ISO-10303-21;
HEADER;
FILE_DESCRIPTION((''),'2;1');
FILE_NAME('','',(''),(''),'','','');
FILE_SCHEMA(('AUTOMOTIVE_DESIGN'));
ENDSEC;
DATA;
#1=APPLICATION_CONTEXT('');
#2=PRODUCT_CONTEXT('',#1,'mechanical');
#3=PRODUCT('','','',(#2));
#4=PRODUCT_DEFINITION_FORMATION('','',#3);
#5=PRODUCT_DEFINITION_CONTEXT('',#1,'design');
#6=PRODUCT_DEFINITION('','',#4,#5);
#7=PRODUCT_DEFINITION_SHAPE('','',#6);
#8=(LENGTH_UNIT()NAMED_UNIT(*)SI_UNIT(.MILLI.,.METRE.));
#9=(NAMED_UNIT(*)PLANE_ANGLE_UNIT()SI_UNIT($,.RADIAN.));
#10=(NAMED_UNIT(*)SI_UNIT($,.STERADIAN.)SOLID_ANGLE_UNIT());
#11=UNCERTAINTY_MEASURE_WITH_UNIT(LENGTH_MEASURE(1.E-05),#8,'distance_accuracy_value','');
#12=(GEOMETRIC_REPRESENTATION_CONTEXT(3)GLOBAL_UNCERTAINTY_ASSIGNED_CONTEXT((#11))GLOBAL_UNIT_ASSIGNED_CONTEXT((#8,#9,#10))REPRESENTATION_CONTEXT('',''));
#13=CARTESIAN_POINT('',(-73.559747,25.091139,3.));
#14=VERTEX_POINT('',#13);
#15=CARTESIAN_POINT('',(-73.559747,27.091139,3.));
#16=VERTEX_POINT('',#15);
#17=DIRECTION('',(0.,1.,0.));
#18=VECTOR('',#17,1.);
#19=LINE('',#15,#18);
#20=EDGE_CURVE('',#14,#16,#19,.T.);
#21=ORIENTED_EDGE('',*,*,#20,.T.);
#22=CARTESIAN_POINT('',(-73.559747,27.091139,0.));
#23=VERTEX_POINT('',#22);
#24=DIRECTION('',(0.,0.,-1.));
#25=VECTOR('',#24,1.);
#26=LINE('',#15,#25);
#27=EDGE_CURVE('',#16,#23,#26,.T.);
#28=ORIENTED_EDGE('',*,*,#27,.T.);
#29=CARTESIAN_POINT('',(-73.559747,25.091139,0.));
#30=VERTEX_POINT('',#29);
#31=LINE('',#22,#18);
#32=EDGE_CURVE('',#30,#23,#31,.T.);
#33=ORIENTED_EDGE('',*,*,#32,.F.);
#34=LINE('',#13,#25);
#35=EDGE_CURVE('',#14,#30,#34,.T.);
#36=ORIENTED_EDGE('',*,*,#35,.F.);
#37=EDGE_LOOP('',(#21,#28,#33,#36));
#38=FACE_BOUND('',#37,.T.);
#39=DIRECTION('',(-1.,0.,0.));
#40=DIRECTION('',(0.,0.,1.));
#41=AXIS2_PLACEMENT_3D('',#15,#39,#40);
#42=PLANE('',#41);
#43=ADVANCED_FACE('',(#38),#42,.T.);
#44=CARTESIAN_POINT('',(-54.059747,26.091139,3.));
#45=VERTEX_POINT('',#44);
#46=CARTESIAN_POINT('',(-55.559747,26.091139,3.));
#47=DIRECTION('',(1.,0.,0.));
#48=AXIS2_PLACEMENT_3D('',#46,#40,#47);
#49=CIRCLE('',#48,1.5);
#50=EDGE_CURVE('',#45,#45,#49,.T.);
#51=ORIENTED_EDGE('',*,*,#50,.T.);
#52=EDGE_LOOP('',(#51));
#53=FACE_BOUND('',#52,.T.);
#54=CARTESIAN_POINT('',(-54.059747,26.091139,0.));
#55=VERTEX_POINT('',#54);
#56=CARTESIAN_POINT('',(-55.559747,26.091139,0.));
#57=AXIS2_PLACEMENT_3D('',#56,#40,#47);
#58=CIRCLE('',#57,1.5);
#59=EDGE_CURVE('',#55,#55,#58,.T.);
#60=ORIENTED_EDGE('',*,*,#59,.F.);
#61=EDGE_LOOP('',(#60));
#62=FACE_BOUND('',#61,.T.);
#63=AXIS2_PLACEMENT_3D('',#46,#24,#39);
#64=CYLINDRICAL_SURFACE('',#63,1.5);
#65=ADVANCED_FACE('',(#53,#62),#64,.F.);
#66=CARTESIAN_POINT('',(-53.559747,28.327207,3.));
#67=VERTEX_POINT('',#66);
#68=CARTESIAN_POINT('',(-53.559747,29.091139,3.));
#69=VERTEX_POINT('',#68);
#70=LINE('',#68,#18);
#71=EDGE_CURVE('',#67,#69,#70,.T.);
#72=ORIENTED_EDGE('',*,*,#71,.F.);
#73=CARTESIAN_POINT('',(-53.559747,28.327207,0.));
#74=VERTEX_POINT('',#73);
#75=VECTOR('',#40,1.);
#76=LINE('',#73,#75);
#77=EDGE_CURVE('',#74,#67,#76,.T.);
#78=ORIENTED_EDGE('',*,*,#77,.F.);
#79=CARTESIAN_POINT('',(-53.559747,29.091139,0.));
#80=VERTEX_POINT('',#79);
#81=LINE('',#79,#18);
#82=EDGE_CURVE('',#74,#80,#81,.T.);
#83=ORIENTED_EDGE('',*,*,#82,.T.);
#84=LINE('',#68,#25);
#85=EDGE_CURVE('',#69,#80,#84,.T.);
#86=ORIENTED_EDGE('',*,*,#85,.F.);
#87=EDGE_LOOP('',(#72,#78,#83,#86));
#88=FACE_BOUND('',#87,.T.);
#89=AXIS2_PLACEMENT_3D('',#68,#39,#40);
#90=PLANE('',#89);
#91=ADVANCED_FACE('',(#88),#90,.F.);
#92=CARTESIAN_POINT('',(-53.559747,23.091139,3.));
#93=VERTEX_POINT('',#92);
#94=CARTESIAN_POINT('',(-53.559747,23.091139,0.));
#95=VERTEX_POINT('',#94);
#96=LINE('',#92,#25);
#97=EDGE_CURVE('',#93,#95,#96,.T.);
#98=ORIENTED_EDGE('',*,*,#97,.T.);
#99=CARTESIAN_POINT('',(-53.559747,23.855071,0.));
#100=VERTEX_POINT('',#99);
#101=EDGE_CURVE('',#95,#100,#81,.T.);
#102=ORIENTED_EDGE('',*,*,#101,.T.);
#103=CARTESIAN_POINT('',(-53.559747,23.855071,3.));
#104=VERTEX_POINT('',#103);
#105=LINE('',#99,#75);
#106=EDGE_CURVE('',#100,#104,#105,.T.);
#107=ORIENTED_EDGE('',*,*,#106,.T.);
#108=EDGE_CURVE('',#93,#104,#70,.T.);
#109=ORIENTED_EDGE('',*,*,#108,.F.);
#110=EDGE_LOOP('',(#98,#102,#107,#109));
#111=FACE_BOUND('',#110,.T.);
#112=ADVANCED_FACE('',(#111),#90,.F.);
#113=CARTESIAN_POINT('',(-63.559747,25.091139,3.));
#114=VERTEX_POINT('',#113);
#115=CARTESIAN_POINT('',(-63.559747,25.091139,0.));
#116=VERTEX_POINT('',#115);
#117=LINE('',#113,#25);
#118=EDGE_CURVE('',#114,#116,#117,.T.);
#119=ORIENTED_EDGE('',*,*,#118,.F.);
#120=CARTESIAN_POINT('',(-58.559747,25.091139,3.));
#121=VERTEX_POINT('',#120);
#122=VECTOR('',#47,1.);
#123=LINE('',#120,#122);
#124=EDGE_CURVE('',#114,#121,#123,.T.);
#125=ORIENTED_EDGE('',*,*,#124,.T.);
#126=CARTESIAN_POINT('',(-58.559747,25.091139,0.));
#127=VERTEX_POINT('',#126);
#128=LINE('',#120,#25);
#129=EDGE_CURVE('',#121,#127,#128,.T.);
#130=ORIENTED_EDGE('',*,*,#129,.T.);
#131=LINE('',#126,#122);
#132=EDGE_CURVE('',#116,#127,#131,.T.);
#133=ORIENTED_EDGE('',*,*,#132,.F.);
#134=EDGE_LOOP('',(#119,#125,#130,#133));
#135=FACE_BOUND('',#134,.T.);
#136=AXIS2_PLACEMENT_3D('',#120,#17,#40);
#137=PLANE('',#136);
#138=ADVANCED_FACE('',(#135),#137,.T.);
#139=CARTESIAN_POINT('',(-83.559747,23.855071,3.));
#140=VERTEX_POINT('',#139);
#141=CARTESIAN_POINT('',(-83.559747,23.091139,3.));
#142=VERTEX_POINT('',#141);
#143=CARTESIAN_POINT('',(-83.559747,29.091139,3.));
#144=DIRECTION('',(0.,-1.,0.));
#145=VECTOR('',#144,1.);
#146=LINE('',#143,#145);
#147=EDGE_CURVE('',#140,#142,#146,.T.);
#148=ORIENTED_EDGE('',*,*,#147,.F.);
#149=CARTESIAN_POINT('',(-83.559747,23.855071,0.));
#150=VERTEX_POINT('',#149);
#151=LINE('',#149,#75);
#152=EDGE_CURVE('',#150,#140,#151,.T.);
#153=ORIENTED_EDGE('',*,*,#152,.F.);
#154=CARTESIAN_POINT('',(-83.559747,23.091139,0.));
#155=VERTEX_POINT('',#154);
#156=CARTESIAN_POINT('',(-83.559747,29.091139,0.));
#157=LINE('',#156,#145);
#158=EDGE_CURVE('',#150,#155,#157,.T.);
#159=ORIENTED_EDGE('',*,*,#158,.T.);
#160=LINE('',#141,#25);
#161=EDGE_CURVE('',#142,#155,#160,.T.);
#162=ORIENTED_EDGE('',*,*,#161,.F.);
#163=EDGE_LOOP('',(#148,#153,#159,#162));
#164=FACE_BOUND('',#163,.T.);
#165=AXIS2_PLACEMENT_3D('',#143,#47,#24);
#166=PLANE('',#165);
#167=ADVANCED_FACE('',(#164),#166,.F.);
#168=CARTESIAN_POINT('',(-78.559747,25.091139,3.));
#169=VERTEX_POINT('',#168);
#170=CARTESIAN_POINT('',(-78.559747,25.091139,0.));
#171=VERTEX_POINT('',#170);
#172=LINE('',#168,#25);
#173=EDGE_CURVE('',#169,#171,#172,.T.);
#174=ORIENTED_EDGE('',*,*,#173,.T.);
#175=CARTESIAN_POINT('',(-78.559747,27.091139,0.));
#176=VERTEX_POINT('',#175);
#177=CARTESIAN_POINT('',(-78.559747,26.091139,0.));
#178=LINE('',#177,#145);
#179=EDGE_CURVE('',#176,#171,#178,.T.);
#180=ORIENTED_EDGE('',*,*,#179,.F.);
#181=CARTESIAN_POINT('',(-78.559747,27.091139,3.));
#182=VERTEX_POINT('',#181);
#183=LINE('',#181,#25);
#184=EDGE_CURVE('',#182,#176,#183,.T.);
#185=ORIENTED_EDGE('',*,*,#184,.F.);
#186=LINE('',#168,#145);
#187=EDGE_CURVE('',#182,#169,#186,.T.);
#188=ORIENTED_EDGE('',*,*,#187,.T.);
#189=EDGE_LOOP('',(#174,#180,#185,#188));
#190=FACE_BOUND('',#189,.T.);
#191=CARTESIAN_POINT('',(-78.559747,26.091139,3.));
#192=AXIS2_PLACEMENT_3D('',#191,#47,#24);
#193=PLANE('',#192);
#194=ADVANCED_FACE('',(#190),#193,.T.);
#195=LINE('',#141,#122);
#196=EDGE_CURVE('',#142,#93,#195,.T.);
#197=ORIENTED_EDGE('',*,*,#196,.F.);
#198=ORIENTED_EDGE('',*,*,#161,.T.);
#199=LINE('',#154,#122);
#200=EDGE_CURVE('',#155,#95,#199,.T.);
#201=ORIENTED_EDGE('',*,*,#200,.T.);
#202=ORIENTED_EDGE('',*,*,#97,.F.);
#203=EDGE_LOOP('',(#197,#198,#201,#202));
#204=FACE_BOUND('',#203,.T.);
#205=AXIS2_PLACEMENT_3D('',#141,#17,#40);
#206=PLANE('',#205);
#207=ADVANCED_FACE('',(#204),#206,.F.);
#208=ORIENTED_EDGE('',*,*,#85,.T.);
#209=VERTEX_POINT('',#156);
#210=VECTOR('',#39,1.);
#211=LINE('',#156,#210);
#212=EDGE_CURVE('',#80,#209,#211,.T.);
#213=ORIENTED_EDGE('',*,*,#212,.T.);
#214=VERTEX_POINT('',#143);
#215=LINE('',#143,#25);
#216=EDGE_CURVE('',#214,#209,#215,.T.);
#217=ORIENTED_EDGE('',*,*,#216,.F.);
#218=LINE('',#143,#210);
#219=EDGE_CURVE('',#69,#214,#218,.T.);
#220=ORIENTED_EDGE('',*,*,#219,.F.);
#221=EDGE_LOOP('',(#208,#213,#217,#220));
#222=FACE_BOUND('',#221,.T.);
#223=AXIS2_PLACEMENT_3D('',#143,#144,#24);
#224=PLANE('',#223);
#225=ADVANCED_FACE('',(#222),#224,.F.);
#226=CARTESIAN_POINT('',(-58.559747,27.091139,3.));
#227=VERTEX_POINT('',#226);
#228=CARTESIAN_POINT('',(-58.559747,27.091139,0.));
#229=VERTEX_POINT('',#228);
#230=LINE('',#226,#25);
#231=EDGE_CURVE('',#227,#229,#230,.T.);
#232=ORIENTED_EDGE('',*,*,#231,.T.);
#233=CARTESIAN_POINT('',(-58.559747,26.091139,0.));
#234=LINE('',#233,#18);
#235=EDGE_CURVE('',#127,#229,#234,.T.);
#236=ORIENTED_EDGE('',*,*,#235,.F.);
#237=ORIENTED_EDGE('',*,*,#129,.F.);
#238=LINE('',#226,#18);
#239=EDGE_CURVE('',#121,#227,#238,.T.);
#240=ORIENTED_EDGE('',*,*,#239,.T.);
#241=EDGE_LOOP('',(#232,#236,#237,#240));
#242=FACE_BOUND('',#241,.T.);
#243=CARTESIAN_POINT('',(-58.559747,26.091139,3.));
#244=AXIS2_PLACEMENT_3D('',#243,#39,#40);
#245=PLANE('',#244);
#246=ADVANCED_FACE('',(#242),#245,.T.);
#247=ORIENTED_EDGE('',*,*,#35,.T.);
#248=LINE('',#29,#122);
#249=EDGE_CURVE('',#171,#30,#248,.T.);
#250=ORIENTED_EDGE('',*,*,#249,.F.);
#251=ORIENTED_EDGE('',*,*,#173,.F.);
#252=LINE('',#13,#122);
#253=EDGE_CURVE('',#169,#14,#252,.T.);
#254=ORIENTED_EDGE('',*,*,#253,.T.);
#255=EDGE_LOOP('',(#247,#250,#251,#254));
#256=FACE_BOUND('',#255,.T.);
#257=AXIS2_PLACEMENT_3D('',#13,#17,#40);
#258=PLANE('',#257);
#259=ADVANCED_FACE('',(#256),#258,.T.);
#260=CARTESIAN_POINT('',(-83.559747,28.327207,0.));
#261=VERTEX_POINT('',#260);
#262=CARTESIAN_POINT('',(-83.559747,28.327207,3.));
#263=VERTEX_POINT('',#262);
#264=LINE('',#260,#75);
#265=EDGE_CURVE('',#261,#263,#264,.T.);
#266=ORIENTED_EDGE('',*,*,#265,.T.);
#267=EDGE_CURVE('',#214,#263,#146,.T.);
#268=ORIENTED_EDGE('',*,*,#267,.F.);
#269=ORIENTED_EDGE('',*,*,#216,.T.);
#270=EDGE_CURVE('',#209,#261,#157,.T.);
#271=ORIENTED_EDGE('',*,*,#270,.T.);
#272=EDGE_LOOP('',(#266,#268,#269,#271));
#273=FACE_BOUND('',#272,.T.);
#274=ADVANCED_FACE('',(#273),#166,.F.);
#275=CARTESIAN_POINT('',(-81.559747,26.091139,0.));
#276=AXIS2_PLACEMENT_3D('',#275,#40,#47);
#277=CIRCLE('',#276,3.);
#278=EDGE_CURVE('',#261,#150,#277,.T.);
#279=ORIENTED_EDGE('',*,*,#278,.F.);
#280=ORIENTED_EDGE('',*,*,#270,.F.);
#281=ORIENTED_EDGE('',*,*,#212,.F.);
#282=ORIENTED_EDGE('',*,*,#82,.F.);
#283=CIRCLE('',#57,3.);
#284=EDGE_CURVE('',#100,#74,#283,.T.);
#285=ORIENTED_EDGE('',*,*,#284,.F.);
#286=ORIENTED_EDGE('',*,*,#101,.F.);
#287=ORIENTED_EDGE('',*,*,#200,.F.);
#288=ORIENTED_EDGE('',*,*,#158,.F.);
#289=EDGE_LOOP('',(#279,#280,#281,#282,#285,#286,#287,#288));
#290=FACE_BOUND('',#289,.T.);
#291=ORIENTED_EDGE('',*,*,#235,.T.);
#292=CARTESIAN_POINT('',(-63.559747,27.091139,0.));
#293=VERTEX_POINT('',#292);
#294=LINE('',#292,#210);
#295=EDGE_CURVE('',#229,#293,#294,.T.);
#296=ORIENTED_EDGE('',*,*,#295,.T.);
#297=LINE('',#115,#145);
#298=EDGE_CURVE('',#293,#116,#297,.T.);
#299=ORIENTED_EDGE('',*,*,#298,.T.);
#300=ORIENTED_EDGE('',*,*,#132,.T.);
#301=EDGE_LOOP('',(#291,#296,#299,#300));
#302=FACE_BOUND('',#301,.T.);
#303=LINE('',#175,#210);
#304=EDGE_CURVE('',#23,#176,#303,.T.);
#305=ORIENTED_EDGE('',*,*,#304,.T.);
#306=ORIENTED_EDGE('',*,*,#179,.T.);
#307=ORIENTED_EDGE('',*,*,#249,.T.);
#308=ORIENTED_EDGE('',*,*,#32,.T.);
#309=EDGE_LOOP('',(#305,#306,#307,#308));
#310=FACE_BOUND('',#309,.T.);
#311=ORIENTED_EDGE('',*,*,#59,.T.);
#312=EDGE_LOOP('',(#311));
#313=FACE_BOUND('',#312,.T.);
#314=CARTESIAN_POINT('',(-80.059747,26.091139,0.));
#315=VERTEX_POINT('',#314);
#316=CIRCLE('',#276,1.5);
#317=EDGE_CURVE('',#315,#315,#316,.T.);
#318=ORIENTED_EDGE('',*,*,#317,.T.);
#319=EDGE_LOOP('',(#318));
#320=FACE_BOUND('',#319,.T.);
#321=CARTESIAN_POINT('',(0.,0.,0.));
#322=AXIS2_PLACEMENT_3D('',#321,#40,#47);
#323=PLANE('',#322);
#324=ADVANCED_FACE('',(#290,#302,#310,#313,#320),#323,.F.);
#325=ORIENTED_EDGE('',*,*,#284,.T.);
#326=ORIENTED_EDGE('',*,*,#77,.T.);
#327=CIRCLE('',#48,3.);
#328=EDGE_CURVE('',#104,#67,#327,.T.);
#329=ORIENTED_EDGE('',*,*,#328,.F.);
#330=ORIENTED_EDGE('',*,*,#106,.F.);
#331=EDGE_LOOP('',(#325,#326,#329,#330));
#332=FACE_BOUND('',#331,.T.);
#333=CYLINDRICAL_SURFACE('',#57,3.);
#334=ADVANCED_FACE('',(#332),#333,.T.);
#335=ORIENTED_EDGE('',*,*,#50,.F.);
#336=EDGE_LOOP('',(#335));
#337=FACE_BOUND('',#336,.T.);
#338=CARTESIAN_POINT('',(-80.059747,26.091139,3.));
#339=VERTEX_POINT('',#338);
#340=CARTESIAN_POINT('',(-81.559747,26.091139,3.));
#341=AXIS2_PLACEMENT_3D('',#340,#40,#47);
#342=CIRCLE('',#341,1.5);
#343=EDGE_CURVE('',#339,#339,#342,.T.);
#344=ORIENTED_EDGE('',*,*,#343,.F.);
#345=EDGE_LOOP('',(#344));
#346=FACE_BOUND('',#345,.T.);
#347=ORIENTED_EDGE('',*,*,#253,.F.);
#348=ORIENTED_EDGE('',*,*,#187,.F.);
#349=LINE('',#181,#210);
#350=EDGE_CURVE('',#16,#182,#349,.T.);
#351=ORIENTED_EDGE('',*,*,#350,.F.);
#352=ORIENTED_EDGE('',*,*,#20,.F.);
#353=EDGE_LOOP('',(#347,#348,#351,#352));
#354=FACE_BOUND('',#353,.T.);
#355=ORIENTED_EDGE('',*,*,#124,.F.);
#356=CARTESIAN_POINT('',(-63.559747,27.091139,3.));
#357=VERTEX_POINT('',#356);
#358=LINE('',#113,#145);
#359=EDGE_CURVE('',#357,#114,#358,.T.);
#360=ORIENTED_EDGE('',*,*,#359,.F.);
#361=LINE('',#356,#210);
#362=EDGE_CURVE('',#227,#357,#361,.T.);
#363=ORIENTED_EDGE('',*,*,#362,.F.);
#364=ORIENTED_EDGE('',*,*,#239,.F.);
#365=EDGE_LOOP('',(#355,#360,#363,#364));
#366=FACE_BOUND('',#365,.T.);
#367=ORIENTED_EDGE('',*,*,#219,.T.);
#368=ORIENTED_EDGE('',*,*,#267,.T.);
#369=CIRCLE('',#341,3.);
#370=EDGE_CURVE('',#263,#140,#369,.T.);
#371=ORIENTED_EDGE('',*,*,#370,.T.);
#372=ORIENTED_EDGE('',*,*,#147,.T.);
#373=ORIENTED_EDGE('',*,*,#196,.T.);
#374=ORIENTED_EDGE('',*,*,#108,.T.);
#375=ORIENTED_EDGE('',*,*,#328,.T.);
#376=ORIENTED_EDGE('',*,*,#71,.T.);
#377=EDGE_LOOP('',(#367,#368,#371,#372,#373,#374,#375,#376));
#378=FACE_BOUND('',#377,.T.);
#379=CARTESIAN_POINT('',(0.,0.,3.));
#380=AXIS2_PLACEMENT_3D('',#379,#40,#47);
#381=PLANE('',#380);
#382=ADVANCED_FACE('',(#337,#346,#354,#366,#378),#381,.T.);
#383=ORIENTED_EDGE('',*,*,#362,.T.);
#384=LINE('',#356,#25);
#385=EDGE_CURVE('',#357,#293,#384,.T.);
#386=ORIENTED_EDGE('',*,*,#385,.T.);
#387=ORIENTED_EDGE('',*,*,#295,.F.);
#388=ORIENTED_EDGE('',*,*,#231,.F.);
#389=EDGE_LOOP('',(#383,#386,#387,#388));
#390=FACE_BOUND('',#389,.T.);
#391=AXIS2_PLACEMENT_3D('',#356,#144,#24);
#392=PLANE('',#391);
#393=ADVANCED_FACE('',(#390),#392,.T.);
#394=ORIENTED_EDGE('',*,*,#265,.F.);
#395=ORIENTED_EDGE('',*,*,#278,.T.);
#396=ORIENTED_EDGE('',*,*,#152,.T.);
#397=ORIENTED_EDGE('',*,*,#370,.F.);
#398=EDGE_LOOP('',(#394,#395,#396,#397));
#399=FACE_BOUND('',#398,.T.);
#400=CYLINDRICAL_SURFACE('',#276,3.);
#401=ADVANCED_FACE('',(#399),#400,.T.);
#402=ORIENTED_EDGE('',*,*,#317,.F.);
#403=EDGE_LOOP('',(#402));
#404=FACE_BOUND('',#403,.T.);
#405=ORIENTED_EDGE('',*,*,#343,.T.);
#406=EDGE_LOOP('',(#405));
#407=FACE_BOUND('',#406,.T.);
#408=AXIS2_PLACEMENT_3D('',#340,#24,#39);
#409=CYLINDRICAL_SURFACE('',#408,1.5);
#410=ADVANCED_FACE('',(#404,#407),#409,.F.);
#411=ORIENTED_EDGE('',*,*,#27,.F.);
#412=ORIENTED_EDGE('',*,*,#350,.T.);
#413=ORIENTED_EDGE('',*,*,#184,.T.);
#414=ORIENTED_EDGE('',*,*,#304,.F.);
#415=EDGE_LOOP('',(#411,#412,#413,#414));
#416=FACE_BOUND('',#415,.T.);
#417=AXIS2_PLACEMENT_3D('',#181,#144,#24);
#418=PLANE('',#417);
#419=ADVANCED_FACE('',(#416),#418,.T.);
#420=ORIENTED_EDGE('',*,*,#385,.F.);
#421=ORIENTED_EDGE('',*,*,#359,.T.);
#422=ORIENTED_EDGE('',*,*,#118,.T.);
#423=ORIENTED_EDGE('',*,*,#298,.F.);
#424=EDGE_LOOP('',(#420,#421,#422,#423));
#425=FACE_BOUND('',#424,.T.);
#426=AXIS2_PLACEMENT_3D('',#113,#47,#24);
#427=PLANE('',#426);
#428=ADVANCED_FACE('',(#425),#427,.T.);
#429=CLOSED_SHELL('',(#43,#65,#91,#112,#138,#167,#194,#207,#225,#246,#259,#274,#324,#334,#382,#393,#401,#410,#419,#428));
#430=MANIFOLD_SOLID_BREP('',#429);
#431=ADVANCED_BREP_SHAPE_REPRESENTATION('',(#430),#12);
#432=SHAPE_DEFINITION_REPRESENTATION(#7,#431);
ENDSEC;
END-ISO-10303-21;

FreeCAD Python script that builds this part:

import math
import FreeCAD as App
import Part
import Sketcher
from FreeCAD import Vector

doc = App.newDocument("Part")
body = doc.addObject("PartDesign::Body", "Body")

sketch1 = body.newObject("Sketcher::SketchObject", "Sketch")
sketch1.AttachmentSupport = (doc.getObject("XY_Plane"), [""])
sketch1.MapMode = "FlatFace"
sketch1.addGeometry([
    Part.LineSegment(Vector(-83.559747, 29.091139, 0), Vector(-83.559747, 23.091139, 0)),
    Part.LineSegment(Vector(-83.559747, 23.091139, 0), Vector(-53.559747, 23.091139, 0)),
    Part.LineSegment(Vector(-53.559747, 23.091139, 0), Vector(-53.559747, 29.091139, 0)),
    Part.LineSegment(Vector(-53.559747, 29.091139, 0), Vector(-83.559747, 29.091139, 0)),
    Part.Circle(Vector(-81.559747, 26.091139, 0), Vector(0, 0, 1), 1.5),
    Part.LineSegment(Vector(-78.559747, 25.091139, 0), Vector(-78.559747, 27.091139, 0)),
    Part.LineSegment(Vector(-78.559747, 27.091139, 0), Vector(-73.559747, 27.091139, 0)),
    Part.LineSegment(Vector(-73.559747, 27.091139, 0), Vector(-73.559747, 25.091139, 0)),
    Part.LineSegment(Vector(-73.559747, 25.091139, 0), Vector(-78.559747, 25.091139, 0)),
    Part.LineSegment(Vector(-58.559747, 27.091139, 0), Vector(-58.559747, 25.091139, 0)),
    Part.LineSegment(Vector(-58.559747, 25.091139, 0), Vector(-63.559747, 25.091139, 0)),
    Part.LineSegment(Vector(-63.559747, 25.091139, 0), Vector(-63.559747, 27.091139, 0)),
    Part.LineSegment(Vector(-63.559747, 27.091139, 0), Vector(-58.559747, 27.091139, 0)),
    Part.Circle(Vector(-55.559747, 26.091139, 0), Vector(0, 0, 1), 1.5),
], False)
sketch1.addConstraint([
    Sketcher.Constraint("Coincident", 0, 2, 1, 1),
    Sketcher.Constraint("Coincident", 1, 2, 2, 1),
    Sketcher.Constraint("Coincident", 2, 2, 3, 1),
    Sketcher.Constraint("Coincident", 3, 2, 0, 1),
    Sketcher.Constraint("Coincident", 5, 2, 6, 1),
    Sketcher.Constraint("Coincident", 6, 2, 7, 1),
    Sketcher.Constraint("Coincident", 7, 2, 8, 1),
    Sketcher.Constraint("Coincident", 8, 2, 5, 1),
    Sketcher.Constraint("Coincident", 9, 2, 10, 1),
    Sketcher.Constraint("Coincident", 10, 2, 11, 1),
    Sketcher.Constraint("Coincident", 11, 2, 12, 1),
    Sketcher.Constraint("Coincident", 12, 2, 9, 1),
    Sketcher.Constraint("Vertical", 0),
    Sketcher.Constraint("Horizontal", 1),
    Sketcher.Constraint("Vertical", 2),
    Sketcher.Constraint("Horizontal", 3),
    Sketcher.Constraint("Vertical", 5),
    Sketcher.Constraint("Horizontal", 6),
    Sketcher.Constraint("Vertical", 7),
    Sketcher.Constraint("Horizontal", 8),
    Sketcher.Constraint("Vertical", 9),
    Sketcher.Constraint("Horizontal", 10),
    Sketcher.Constraint("Vertical", 11),
    Sketcher.Constraint("Horizontal", 12),
    Sketcher.Constraint("Equal", 4, 13),
    Sketcher.Constraint("Horizontal", 4, 3, 13, 3),
    Sketcher.Constraint("Horizontal", 8, 2, 9, 2),
    Sketcher.Constraint("Horizontal", 6, 2, 11, 2),
    Sketcher.Constraint("Equal", 8, 10),
    Sketcher.Constraint("Diameter", 4, 3.0),
    Sketcher.Constraint("DistanceX", 1, 1, 1, 2, 30.0),
    Sketcher.Constraint("DistanceX", 6, 1, 6, 2, 5.0),
    Sketcher.Constraint("DistanceY", 0, 2, 0, 1, 6.0),
    Sketcher.Constraint("DistanceY", 5, 1, 5, 2, 2.0),
    Sketcher.Constraint("DistanceX", 4, 3, 13, 3, 26.0),
    Sketcher.Constraint("DistanceX", 0, 2, 4, 3, 2.0),
    Sketcher.Constraint("DistanceY", 0, 2, 4, 3, 3.0),
    Sketcher.Constraint("DistanceX", 4, 3, 5, 2, 3.0),
    Sketcher.Constraint("DistanceY", 4, 3, 5, 2, 1.0),
    Sketcher.Constraint("DistanceX", 9, 2, 13, 3, 3.0),
    Sketcher.Constraint("DistanceY", -1, 1, 4, 3, 26.091139),
    Sketcher.Constraint("DistanceX", 4, 3, -1, 1, 81.559747),
])
pad1 = body.newObject("PartDesign::Pad", "Pad")
pad1.Profile = sketch1
pad1.Length = 3

sketch2 = body.newObject("Sketcher::SketchObject", "Sketch001")
sketch2.AttachmentSupport = (doc.getObject("XY_Plane"), [""])
sketch2.MapMode = "FlatFace"
sketch2.AttachmentOffset = App.Placement(Vector(0, 0, 3), App.Rotation())
sketch2.addGeometry([
    Part.ArcOfCircle(Part.Circle(Vector(-81.559747, 26.091139, 0), Vector(0, 0, 1), 3), math.radians(131.810315), math.radians(228.189685)),
    Part.LineSegment(Vector(-83.559747, 23.855071, 0), Vector(-83.559747, 28.327207, 0)),
    Part.ArcOfCircle(Part.Circle(Vector(-55.559747, 26.091139, 0), Vector(0, 0, 1), 3), math.radians(-48.189685), math.radians(48.189685)),
    Part.LineSegment(Vector(-53.559747, 28.327207, 0), Vector(-53.559747, 23.855071, 0)),
], False)
sketch2.addConstraint([
    Sketcher.Constraint("Coincident", 0, 1, 1, 2),
    Sketcher.Constraint("Coincident", 1, 1, 0, 2),
    Sketcher.Constraint("Coincident", 2, 1, 3, 2),
    Sketcher.Constraint("Coincident", 3, 1, 2, 2),
    Sketcher.Constraint("Vertical", 1),
    Sketcher.Constraint("Vertical", 3),
    Sketcher.Constraint("Equal", 0, 2),
    Sketcher.Constraint("Horizontal", 0, 3, 2, 3),
    Sketcher.Constraint("Horizontal", 1, 1, 2, 1),
    Sketcher.Constraint("Radius", 0, 3.0),
    Sketcher.Constraint("DistanceX", 0, 3, 2, 3, 26.0),
    Sketcher.Constraint("DistanceX", 0, 1, 0, 3, 2.0),
    Sketcher.Constraint("DistanceY", -1, 1, 0, 3, 26.091139),
    Sketcher.Constraint("DistanceX", 0, 3, -1, 1, 81.559747),
])
pad2 = body.newObject("PartDesign::Pad", "Pad001")
pad2.Profile = sketch2
pad2.Length = 3
pad2.Reversed = True

doc.recompute()
